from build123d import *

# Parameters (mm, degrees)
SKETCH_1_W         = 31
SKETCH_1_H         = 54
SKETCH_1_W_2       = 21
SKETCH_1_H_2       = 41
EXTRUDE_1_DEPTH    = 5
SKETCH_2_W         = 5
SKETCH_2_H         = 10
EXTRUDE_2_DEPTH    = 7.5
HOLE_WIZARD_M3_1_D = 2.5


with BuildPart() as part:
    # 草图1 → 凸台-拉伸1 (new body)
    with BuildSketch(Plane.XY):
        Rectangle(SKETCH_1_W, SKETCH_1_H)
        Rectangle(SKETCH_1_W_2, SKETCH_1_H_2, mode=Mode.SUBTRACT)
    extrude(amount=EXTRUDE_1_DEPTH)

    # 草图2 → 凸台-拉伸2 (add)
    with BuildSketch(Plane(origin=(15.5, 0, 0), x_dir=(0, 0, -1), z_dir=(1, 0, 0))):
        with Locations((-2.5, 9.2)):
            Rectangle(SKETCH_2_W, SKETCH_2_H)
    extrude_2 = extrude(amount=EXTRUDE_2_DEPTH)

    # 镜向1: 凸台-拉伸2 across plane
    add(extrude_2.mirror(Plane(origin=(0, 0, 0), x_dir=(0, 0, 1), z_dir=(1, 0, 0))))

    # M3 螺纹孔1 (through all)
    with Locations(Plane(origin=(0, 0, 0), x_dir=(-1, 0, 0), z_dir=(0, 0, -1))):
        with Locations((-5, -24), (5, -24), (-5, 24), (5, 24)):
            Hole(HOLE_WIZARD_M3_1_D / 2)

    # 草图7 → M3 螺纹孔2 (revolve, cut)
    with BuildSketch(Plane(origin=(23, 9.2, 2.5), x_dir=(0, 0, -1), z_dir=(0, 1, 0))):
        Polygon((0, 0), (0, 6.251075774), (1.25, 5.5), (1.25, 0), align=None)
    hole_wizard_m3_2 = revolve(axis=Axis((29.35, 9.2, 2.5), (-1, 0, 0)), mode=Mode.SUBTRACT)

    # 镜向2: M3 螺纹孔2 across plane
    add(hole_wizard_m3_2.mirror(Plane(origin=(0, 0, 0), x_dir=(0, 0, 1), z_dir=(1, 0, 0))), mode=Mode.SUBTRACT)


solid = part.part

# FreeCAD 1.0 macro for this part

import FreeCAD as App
import Part
import Sketcher
from FreeCAD import Vector
Q = App.Units.Quantity

doc = App.newDocument("Part")
params = doc.addObject("Spreadsheet::Sheet", "Params")
for row, (alias, value) in enumerate([
    ("sketch1_width", "31 mm"),
    ("sketch1_width2", "21 mm"),
    ("sketch1_height", "54 mm"),
    ("sketch1_height2", "41 mm"),
    ("pad1_length", "5 mm"),
    ("sketch2_width", "10 mm"),
    ("sketch2_height", "5 mm"),
    ("pad2_length", "7.5 mm"),
    ("sketch3_diameter", "2.5 mm"),
    ("hole_diameter", "2.5 mm"),
    ("sketch4_width", "5.5 mm"),
    ("sketch4_height", "1.25 mm"),
    ("groove_angle", "360 deg"),
], start=1):
    params.set(f"A{row}", alias)
    params.set(f"B{row}", "=" + value)
    params.setAlias(f"B{row}", alias)

body = doc.addObject("PartDesign::Body", "Body")

# Sketch on XY plane
sketch1 = doc.addObject("Sketcher::SketchObject", "Sketch")
body.addObject(sketch1)
sketch1.AttachmentSupport = (doc.XY_Plane, [""])
sketch1.MapMode = "FlatFace"
sketch1.addGeometry([
    Part.LineSegment(Vector(-16, 27, 0), Vector(-16, -27, 0)),  # 0
    Part.LineSegment(Vector(-16, -27, 0), Vector(16, -27, 0)),  # 1
    Part.LineSegment(Vector(16, -27, 0), Vector(16, 27, 0)),  # 2
    Part.LineSegment(Vector(16, 27, 0), Vector(-16, 27, 0)),  # 3
    Part.LineSegment(Vector(10, -20, 0), Vector(-10, -20, 0)),  # 4
    Part.LineSegment(Vector(-10, -20, 0), Vector(-10, 20, 0)),  # 5
    Part.LineSegment(Vector(-10, 20, 0), Vector(10, 20, 0)),  # 6
    Part.LineSegment(Vector(10, 20, 0), Vector(10, -20, 0)),  # 7
], False)
sketch1.addConstraint([
    Sketcher.Constraint("Coincident", 0, 2, 1, 1),
    Sketcher.Constraint("Coincident", 1, 2, 2, 1),
    Sketcher.Constraint("Coincident", 2, 2, 3, 1),
    Sketcher.Constraint("Coincident", 3, 2, 0, 1),
    Sketcher.Constraint("Coincident", 4, 2, 5, 1),
    Sketcher.Constraint("Coincident", 5, 2, 6, 1),
    Sketcher.Constraint("Coincident", 6, 2, 7, 1),
    Sketcher.Constraint("Coincident", 7, 2, 4, 1),
    Sketcher.Constraint("Vertical", 0),
    Sketcher.Constraint("Horizontal", 1),
    Sketcher.Constraint("Vertical", 2),
    Sketcher.Constraint("Horizontal", 3),
    Sketcher.Constraint("Horizontal", 4),
    Sketcher.Constraint("Vertical", 5),
    Sketcher.Constraint("Horizontal", 6),
    Sketcher.Constraint("Vertical", 7),
    Sketcher.Constraint("Symmetric", 0, 2, 2, 2, -1, 1),
    Sketcher.Constraint("Symmetric", 4, 2, 6, 2, -1, 1),
    Sketcher.Constraint("DistanceX", 1, 1, 1, 2, 31.0),
    Sketcher.Constraint("DistanceX", 4, 2, 4, 1, 21.0),
    Sketcher.Constraint("DistanceY", 0, 2, 0, 1, 54.0),
    Sketcher.Constraint("DistanceY", 5, 1, 5, 2, 41.0),
])
sketch1.setExpression("Constraints[18]", "Params.sketch1_width")
sketch1.setExpression("Constraints[19]", "Params.sketch1_width2")
sketch1.setExpression("Constraints[20]", "Params.sketch1_height")
sketch1.setExpression("Constraints[21]", "Params.sketch1_height2")
pad1 = doc.addObject("PartDesign::Pad", "Pad")
body.addObject(pad1)
pad1.Profile = sketch1
pad1.setExpression("Length", "Params.pad1_length")

# Sketch on YZ plane
sketch2 = doc.addObject("Sketcher::SketchObject", "Sketch001")
body.addObject(sketch2)
sketch2.AttachmentSupport = (doc.YZ_Plane, [""])
sketch2.MapMode = "FlatFace"
sketch2.AttachmentOffset = App.Placement(Vector(0, 0, 15.5), App.Rotation())
sketch2.addGeometry([
    Part.LineSegment(Vector(14, 5, 0), Vector(4, 5, 0)),
    Part.LineSegment(Vector(4, 5, 0), Vector(4, 0, 0)),
    Part.LineSegment(Vector(4, 0, 0), Vector(14, 0, 0)),
    Part.LineSegment(Vector(14, 0, 0), Vector(14, 5, 0)),
], False)
sketch2.addConstraint([
    Sketcher.Constraint("Coincident", 0, 2, 1, 1),
    Sketcher.Constraint("Coincident", 1, 2, 2, 1),
    Sketcher.Constraint("Coincident", 2, 2, 3, 1),
    Sketcher.Constraint("Coincident", 3, 2, 0, 1),
    Sketcher.Constraint("Horizontal", 0),
    Sketcher.Constraint("Vertical", 1),
    Sketcher.Constraint("Horizontal", 2),
    Sketcher.Constraint("Vertical", 3),
    Sketcher.Constraint("PointOnObject", 1, 2, -1),
    Sketcher.Constraint("DistanceX", 0, 2, 0, 1, 10.0),
    Sketcher.Constraint("DistanceY", 1, 2, 1, 1, 5.0),
    Sketcher.Constraint("DistanceX", -1, 1, 0, 2, 4.2),
])
sketch2.setExpression("Constraints[9]", "Params.sketch2_width")
sketch2.setExpression("Constraints[10]", "Params.sketch2_height")
pad2 = doc.addObject("PartDesign::Pad", "Pad001")
body.addObject(pad2)
pad2.Profile = sketch2
pad2.setExpression("Length", "Params.pad2_length")
doc.recompute()

mirrored = doc.addObject("PartDesign::Mirrored", "Mirrored")
body.addObject(mirrored)
mirrored.Originals = [pad2]
mirrored.MirrorPlane = (doc.YZ_Plane, [""])
body.Tip = mirrored

# Sketch on XY plane
sketch3 = doc.addObject("Sketcher::SketchObject", "Sketch002")
body.addObject(sketch3)
sketch3.AttachmentSupport = (doc.XY_Plane, [""])
sketch3.MapMode = "FlatFace"
sketch3.addGeometry([
    Part.Circle(Vector(5, -24, 0), Vector(0, 0, 1), 1.2),
    Part.Circle(Vector(-5, -24, 0), Vector(0, 0, 1), 1.2),
    Part.Circle(Vector(5, 24, 0), Vector(0, 0, 1), 1.2),
    Part.Circle(Vector(-5, 24, 0), Vector(0, 0, 1), 1.2),
], False)
sketch3.addConstraint([
    Sketcher.Constraint("Equal", 0, 1),
    Sketcher.Constraint("Equal", 1, 2),
    Sketcher.Constraint("Equal", 2, 3),
    Sketcher.Constraint("Symmetric", 1, 3, 2, 3, -1, 1),
    Sketcher.Constraint("Symmetric", 0, 3, 3, 3, -1, 1),
    Sketcher.Constraint("Symmetric", 0, 3, 1, 3, -2),
    Sketcher.Constraint("Diameter", 0, 2.5),
    Sketcher.Constraint("DistanceX", -1, 1, 0, 3, 5.0),
    Sketcher.Constraint("DistanceY", 0, 3, -1, 1, 24.0),
])
sketch3.setExpression("Constraints[6]", "Params.sketch3_diameter")
doc.recompute()
hole = doc.addObject("PartDesign::Hole", "Hole")
body.addObject(hole)
hole.Profile = sketch3
hole.ThreadType = "None"
hole.setExpression("Diameter", "Params.hole_diameter")
hole.DepthType = "ThroughAll"
hole.Reversed = True

# Sketch on XZ plane
sketch4 = doc.addObject("Sketcher::SketchObject", "Sketch003")
body.addObject(sketch4)
sketch4.AttachmentSupport = (doc.XZ_Plane, [""])
sketch4.MapMode = "FlatFace"
sketch4.AttachmentOffset = App.Placement(Vector(0, 0, -9.2), App.Rotation())
sketch4.addGeometry([
    Part.LineSegment(Vector(16.7, 2.5, 0), Vector(23, 2.5, 0)),
    Part.LineSegment(Vector(23, 2.5, 0), Vector(23, 1.2, 0)),
    Part.LineSegment(Vector(23, 1.2, 0), Vector(17.5, 1.2, 0)),
    Part.LineSegment(Vector(17.5, 1.2, 0), Vector(16.7, 2.5, 0)),
], False)
sketch4.addGeometry(Part.LineSegment(Vector(23, 2.5, 0), Vector(16.7, 2.5, 0)), True)  # axis
sketch4.addConstraint([
    Sketcher.Constraint("Coincident", 0, 2, 1, 1),
    Sketcher.Constraint("Coincident", 1, 2, 2, 1),
    Sketcher.Constraint("Coincident", 2, 2, 3, 1),
    Sketcher.Constraint("Coincident", 3, 2, 0, 1),
    Sketcher.Constraint("Horizontal", 0),
    Sketcher.Constraint("Vertical", 1),
    Sketcher.Constraint("Horizontal", 2),
    Sketcher.Constraint("Horizontal", 4),
    Sketcher.Constraint("Coincident", 4, 1, 0, 2),
    Sketcher.Constraint("Equal", 0, 4),
    Sketcher.Constraint("Angle", 3, Q("121 deg")),
    Sketcher.Constraint("DistanceX", 2, 2, 2, 1, 5.5),
    Sketcher.Constraint("DistanceX", -1, 1, 0, 2, 23.0),
    Sketcher.Constraint("DistanceY", 1, 2, 1, 1, 1.25),
    Sketcher.Constraint("DistanceY", -1, 1, 0, 2, 2.5),
])
sketch4.setExpression("Constraints[11]", "Params.sketch4_width")
sketch4.setExpression("Constraints[13]", "Params.sketch4_height")
groove = doc.addObject("PartDesign::Groove", "Groove")
body.addObject(groove)
groove.Profile = sketch4
groove.ReferenceAxis = (sketch4, ["Axis0"])
groove.setExpression("Angle", "Params.groove_angle")
doc.recompute()

mirrored2 = doc.addObject("PartDesign::Mirrored", "Mirrored001")
body.addObject(mirrored2)
mirrored2.Originals = [groove]
mirrored2.MirrorPlane = (doc.YZ_Plane, [""])
body.Tip = mirrored2

doc.recompute()
